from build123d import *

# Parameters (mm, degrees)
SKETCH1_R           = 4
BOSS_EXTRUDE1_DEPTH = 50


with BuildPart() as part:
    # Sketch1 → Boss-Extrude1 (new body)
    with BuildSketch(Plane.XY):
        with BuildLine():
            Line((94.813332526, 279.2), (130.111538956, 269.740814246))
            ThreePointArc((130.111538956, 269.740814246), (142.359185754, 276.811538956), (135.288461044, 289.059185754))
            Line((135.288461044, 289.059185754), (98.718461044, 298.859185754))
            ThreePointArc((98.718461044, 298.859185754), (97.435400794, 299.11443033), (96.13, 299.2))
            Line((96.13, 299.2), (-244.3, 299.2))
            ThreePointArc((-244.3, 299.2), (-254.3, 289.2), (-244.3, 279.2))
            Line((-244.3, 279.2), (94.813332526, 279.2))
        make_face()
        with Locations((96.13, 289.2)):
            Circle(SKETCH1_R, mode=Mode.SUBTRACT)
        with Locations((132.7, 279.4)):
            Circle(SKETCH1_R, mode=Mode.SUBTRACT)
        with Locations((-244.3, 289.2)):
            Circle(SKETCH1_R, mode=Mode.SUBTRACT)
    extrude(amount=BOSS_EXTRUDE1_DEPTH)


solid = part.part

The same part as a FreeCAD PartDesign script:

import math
import FreeCAD as App
import Part
import Sketcher
from FreeCAD import Vector
Q = App.Units.Quantity

doc = App.newDocument("Part")
params = doc.addObject("Spreadsheet::Sheet", "Params")
for row, (alias, value) in enumerate([
    ("sketch1_diameter", "8 mm"),
    ("sketch1_radius", "10 mm"),
    ("sketch1_width", "340.43 mm"),
    ("pad1_length", "50 mm"),
], start=1):
    params.set(f"A{row}", alias)
    params.set(f"B{row}", "=" + value)
    params.setAlias(f"B{row}", alias)

body = doc.addObject("PartDesign::Body", "Body")

# Sketch on XY plane
sketch1 = body.newObject("Sketcher::SketchObject", "Sketch")
sketch1.AttachmentSupport = (doc.getObject("XY_Plane"), [""])
sketch1.MapMode = "FlatFace"
sketch1.addGeometry(Part.LineSegment(Vector(94.8, 279.2, 0), Vector(130.1, 269.7, 0)), False)
sketch1.addGeometry(Part.ArcOfCircle(Part.Circle(Vector(132.7, 279.4, 0), Vector(0, 0, 1), 10), math.radians(-105), math.radians(75)), False)
sketch1.addGeometry(Part.LineSegment(Vector(135.3, 289.1, 0), Vector(98.7, 298.9, 0)), False)
sketch1.addGeometry(Part.ArcOfCircle(Part.Circle(Vector(96.1, 289.2, 0), Vector(0, 0, 1), 10), math.radians(75), math.radians(90)), False)
sketch1.addGeometry(Part.LineSegment(Vector(96.1, 299.2, 0), Vector(-244.3, 299.2, 0)), False)
sketch1.addGeometry(Part.ArcOfCircle(Part.Circle(Vector(-244.3, 289.2, 0), Vector(0, 0, 1), 10), math.radians(90), math.radians(270)), False)
sketch1.addGeometry(Part.LineSegment(Vector(-244.3, 279.2, 0), Vector(94.8, 279.2, 0)), False)
sketch1.addGeometry(Part.Circle(Vector(132.7, 279.4, 0), Vector(0, 0, 1), 4), False)
sketch1.addGeometry(Part.Circle(Vector(-244.3, 289.2, 0), Vector(0, 0, 1), 4), False)
sketch1.addGeometry(Part.Circle(Vector(96.1, 289.2, 0), Vector(0, 0, 1), 4), False)
sketch1.addConstraint(Sketcher.Constraint("Tangent", 0, 2, 1, 1))
sketch1.addConstraint(Sketcher.Constraint("Tangent", 1, 2, 2, 1))
sketch1.addConstraint(Sketcher.Constraint("Tangent", 2, 2, 3, 1))
sketch1.addConstraint(Sketcher.Constraint("Tangent", 3, 2, 4, 1))
sketch1.addConstraint(Sketcher.Constraint("Tangent", 4, 2, 5, 1))
sketch1.addConstraint(Sketcher.Constraint("Tangent", 5, 2, 6, 1))
sketch1.addConstraint(Sketcher.Constraint("Coincident", 6, 2, 0, 1))
sketch1.addConstraint(Sketcher.Constraint("Horizontal", 4))
sketch1.addConstraint(Sketcher.Constraint("Horizontal", 6))
sketch1.addConstraint(Sketcher.Constraint("Coincident", 7, 3, 1, 3))
sketch1.addConstraint(Sketcher.Constraint("Coincident", 8, 3, 5, 3))
sketch1.addConstraint(Sketcher.Constraint("Coincident", 9, 3, 3, 3))
sketch1.addConstraint(Sketcher.Constraint("Equal", 1, 3))
sketch1.addConstraint(Sketcher.Constraint("Equal", 3, 5))
sketch1.addConstraint(Sketcher.Constraint("Equal", 7, 8))
sketch1.addConstraint(Sketcher.Constraint("Equal", 8, 9))
sketch1.addConstraint(Sketcher.Constraint("Parallel", 0, 2))
sketch1.addConstraint(Sketcher.Constraint("Diameter", 7, Q("8 mm")))
sketch1.addConstraint(Sketcher.Constraint("Radius", 1, Q("10 mm")))
sketch1.addConstraint(Sketcher.Constraint("DistanceX", 5, 3, 1, 3, Q("377 mm")))
sketch1.addConstraint(Sketcher.Constraint("DistanceX", 4, 2, 4, 1, Q("340.43 mm")))
sketch1.addConstraint(Sketcher.Constraint("DistanceX", -1, 1, 1, 3, Q("132.7 mm")))
sketch1.addConstraint(Sketcher.Constraint("DistanceY", -1, 1, 1, 3, Q("279.4 mm")))
sketch1.addConstraint(Sketcher.Constraint("DistanceY", -1, 1, 3, 3, Q("289.2 mm")))
sketch1.setExpression("Constraints[17]", "Params.sketch1_diameter")
sketch1.setExpression("Constraints[18]", "Params.sketch1_radius")
sketch1.setExpression("Constraints[20]", "Params.sketch1_width")
pad1 = body.newObject("PartDesign::Pad", "Pad")
pad1.Profile = sketch1
pad1.setExpression("Length", "Params.pad1_length")

doc.recompute()
